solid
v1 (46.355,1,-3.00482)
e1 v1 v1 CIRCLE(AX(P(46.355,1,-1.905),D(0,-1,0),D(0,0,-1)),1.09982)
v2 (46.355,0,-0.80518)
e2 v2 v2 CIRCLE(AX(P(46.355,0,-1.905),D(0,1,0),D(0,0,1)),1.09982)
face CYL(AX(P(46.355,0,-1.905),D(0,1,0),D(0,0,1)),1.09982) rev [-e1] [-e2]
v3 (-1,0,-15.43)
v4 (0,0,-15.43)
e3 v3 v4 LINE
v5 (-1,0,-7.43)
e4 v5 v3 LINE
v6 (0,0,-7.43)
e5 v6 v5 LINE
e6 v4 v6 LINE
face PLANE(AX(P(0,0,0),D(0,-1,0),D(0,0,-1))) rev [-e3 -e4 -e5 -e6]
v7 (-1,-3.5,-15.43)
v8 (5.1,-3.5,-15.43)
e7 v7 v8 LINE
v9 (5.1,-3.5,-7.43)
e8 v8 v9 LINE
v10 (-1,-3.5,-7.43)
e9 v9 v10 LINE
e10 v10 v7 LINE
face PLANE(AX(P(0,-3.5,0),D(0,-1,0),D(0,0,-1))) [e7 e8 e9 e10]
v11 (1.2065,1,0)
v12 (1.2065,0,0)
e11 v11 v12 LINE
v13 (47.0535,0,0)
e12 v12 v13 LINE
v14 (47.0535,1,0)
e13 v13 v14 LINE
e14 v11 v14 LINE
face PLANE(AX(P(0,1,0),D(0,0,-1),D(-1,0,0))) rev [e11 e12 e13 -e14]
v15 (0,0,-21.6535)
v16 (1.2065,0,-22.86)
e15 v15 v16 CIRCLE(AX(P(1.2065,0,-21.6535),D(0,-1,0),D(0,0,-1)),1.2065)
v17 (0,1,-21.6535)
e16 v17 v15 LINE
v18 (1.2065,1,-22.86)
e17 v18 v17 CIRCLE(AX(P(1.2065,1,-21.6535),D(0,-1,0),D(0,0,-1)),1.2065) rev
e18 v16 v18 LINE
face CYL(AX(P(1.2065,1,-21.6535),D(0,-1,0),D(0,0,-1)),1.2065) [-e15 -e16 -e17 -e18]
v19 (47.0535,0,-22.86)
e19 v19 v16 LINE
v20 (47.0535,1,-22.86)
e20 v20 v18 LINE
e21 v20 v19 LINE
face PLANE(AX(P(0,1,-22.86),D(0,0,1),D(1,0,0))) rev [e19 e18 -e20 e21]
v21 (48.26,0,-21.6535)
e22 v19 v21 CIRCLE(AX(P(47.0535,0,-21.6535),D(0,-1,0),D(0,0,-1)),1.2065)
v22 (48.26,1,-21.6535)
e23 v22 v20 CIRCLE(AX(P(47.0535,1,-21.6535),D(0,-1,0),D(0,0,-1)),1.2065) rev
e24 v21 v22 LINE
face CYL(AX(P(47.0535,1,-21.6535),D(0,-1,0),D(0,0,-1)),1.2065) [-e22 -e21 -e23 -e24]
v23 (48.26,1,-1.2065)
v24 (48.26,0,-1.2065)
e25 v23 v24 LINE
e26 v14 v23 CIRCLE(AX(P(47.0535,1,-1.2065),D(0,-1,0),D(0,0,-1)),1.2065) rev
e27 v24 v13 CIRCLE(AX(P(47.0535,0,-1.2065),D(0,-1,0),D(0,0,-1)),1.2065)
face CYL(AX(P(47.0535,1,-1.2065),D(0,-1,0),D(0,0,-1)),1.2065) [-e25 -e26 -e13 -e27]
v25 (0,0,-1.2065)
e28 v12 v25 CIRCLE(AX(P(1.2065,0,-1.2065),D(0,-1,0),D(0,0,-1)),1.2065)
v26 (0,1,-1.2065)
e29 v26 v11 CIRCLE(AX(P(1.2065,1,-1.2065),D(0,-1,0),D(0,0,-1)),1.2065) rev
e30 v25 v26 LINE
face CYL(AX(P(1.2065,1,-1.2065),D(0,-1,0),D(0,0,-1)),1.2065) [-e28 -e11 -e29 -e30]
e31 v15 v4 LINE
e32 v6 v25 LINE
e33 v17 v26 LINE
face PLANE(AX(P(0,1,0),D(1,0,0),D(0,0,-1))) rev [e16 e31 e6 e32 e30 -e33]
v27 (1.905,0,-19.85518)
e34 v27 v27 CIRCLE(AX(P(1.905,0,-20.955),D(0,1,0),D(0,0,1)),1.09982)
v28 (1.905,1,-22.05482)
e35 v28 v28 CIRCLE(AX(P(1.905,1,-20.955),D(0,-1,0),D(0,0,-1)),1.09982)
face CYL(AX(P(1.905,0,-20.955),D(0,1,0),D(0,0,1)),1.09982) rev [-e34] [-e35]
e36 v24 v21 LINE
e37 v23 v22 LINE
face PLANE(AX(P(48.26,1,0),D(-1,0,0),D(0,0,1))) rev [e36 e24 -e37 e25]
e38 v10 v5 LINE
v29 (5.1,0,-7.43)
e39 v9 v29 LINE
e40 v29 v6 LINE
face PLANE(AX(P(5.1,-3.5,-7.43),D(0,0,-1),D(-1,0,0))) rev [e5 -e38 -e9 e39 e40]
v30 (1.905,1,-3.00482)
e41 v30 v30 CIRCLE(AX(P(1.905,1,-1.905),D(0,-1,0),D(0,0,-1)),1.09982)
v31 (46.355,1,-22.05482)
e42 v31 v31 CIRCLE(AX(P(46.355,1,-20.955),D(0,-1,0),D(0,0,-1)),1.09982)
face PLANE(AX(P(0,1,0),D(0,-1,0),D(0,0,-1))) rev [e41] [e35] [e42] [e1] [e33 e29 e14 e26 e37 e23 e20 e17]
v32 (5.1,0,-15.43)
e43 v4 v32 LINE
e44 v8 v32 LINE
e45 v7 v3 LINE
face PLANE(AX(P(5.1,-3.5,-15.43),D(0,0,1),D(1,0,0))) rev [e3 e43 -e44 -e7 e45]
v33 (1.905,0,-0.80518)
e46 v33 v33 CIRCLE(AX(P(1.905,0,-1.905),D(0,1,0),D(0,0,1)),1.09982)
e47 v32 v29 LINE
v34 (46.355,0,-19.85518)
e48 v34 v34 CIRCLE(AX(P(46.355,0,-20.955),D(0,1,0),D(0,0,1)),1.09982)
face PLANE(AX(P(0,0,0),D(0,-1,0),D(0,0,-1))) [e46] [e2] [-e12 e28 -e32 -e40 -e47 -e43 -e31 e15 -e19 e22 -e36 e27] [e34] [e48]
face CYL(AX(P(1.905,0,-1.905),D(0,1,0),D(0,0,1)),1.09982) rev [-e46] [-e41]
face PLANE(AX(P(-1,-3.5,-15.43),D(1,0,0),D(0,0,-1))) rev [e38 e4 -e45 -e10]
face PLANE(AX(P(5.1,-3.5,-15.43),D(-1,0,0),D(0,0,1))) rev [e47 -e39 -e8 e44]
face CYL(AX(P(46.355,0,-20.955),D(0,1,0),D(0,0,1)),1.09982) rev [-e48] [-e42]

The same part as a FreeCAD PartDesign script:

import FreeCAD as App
import Part
import Sketcher
from FreeCAD import Vector
Q = App.Units.Quantity


def edges_at(feature, points):
    """Names of the edges that pass closest to the given points."""
    edges = feature.Shape.Edges
    near = lambda p: min(range(len(edges)), key=lambda i: edges[i].distToShape(Part.Vertex(*p))[0])
    return sorted({f"Edge{near(p) + 1}" for p in points})


def add_polygon(sketch, points):
    """Adds a closed chain of lines whose ends are joined by coincident constraints."""
    first, n = sketch.GeometryCount, len(points)
    for a, b in zip(points, points[1:] + points[:1]):
        sketch.addGeometry(Part.LineSegment(App.Vector(*a, 0), App.Vector(*b, 0)), False)
    for i in range(n):
        sketch.addConstraint(Sketcher.Constraint("Coincident", first + i, 2, first + (i + 1) % n, 1))

doc = App.newDocument("Part")
params = doc.addObject("Spreadsheet::Sheet", "Params")
for row, (alias, value) in enumerate([
    ("sketch1_width", "48.26 mm"),
    ("sketch1_height", "22.86 mm"),
    ("pad1_length", "1 mm"),
    ("fillet_radius", "1.2065 mm"),
    ("sketch3_height", "8 mm"),
    ("sketch3_width", "6.1 mm"),
    ("pad2_length", "3.5 mm"),
], start=1):
    params.set(f"A{row}", alias)
    params.set(f"B{row}", "=" + value)
    params.setAlias(f"B{row}", alias)

body = doc.addObject("PartDesign::Body", "Body")

# Sketch on XZ plane
sketch1 = doc.addObject("Sketcher::SketchObject", "Sketch")
body.addObject(sketch1)
sketch1.AttachmentSupport = (doc.XZ_Plane, [""])
sketch1.MapMode = "FlatFace"
add_polygon(sketch1, [(0, -23), (0, 0), (48, 0), (48, -23)])  # lines 0-3
sketch1.addConstraint([
    Sketcher.Constraint("Vertical", 0),
    Sketcher.Constraint("Horizontal", 1),
    Sketcher.Constraint("Vertical", 2),
    Sketcher.Constraint("Horizontal", 3),
    Sketcher.Constraint("Coincident", 0, 2, -1, 1),
    Sketcher.Constraint("DistanceX", 1, 1, 1, 2, Q("48.26 mm")),
    Sketcher.Constraint("DistanceY", 0, 1, 0, 2, Q("22.86 mm")),
])
sketch1.setExpression("Constraints[9]", "Params.sketch1_width")
sketch1.setExpression("Constraints[10]", "Params.sketch1_height")
pad1 = doc.addObject("PartDesign::Pad", "Pad")
body.addObject(pad1)
pad1.Profile = sketch1
pad1.setExpression("Length", "Params.pad1_length")
pad1.Reversed = True

# Sketch on XZ plane
sketch2 = doc.addObject("Sketcher::SketchObject", "Sketch001")
body.addObject(sketch2)
sketch2.AttachmentSupport = (doc.XZ_Plane, [""])
sketch2.MapMode = "FlatFace"
sketch2.AttachmentOffset = App.Placement(Vector(0, 0, -1), App.Rotation())
sketch2.addGeometry([
    Part.Circle(Vector(1.9, -21, 0), Vector(0, 0, 1), 1.1),
    Part.Circle(Vector(1.9, -1.9, 0), Vector(0, 0, 1), 1.1),
    Part.Circle(Vector(46.4, -1.9, 0), Vector(0, 0, 1), 1.1),
    Part.Circle(Vector(46.4, -21, 0), Vector(0, 0, 1), 1.1),
], False)
sketch2.addConstraint([
    Sketcher.Constraint("Equal", 0, 1),
    Sketcher.Constraint("Equal", 1, 2),
    Sketcher.Constraint("Equal", 2, 3),
    Sketcher.Constraint("Horizontal", 1, 3, 2, 3),
    Sketcher.Constraint("Horizontal", 0, 3, 3, 3),
    Sketcher.Constraint("Vertical", 0, 3, 1, 3),
    Sketcher.Constraint("Vertical", 2, 3, 3, 3),
    Sketcher.Constraint("Diameter", 0, Q("2.19964 mm")),
    Sketcher.Constraint("DistanceY", 0, 3, 1, 3, Q("19.05 mm")),
    Sketcher.Constraint("DistanceX", 1, 3, 2, 3, Q("44.45 mm")),
    Sketcher.Constraint("DistanceX", -1, 1, 0, 3, Q("1.905 mm")),
    Sketcher.Constraint("DistanceY", 0, 3, -1, 1, Q("20.955 mm")),
])
pocket1 = doc.addObject("PartDesign::Pocket", "Pocket")
body.addObject(pocket1)
pocket1.Profile = sketch2
pocket1.Type = "ThroughAll"
pocket1.Midplane = True
doc.recompute()

fillet = doc.addObject("PartDesign::Fillet", "Fillet")
body.addObject(fillet)
fillet.Base = (pocket1, edges_at(pocket1, [
    (0, 0.5, -22.86),
    (48.26, 0.5, -22.86),
    (48.26, 0.5, 0),
    (0, 0.5, 0),
]))
fillet.setExpression("Radius", "Params.fillet_radius")

# Sketch on XZ plane
sketch3 = doc.addObject("Sketcher::SketchObject", "Sketch002")
body.addObject(sketch3)
sketch3.AttachmentSupport = (doc.XZ_Plane, [""])
sketch3.MapMode = "FlatFace"
add_polygon(sketch3, [(-1, -7), (-1, -15), (5, -15), (5, -7)])  # lines 0-3
sketch3.addConstraint([
    Sketcher.Constraint("Vertical", 0),
    Sketcher.Constraint("Horizontal", 1),
    Sketcher.Constraint("Vertical", 2),
    Sketcher.Constraint("Horizontal", 3),
    Sketcher.Constraint("DistanceY", 0, 2, 0, 1, Q("8 mm")),
    Sketcher.Constraint("DistanceX", 1, 1, 1, 2, Q("6.1 mm")),
    Sketcher.Constraint("DistanceX", 0, 2, -1, 1, Q("1 mm")),
    Sketcher.Constraint("DistanceY", 0, 2, -1, 1, Q("15.43 mm")),
])
sketch3.setExpression("Constraints[8]", "Params.sketch3_height")
sketch3.setExpression("Constraints[9]", "Params.sketch3_width")
pad2 = doc.addObject("PartDesign::Pad", "Pad001")
body.addObject(pad2)
pad2.Profile = sketch3
pad2.setExpression("Length", "Params.pad2_length")

doc.recompute()
